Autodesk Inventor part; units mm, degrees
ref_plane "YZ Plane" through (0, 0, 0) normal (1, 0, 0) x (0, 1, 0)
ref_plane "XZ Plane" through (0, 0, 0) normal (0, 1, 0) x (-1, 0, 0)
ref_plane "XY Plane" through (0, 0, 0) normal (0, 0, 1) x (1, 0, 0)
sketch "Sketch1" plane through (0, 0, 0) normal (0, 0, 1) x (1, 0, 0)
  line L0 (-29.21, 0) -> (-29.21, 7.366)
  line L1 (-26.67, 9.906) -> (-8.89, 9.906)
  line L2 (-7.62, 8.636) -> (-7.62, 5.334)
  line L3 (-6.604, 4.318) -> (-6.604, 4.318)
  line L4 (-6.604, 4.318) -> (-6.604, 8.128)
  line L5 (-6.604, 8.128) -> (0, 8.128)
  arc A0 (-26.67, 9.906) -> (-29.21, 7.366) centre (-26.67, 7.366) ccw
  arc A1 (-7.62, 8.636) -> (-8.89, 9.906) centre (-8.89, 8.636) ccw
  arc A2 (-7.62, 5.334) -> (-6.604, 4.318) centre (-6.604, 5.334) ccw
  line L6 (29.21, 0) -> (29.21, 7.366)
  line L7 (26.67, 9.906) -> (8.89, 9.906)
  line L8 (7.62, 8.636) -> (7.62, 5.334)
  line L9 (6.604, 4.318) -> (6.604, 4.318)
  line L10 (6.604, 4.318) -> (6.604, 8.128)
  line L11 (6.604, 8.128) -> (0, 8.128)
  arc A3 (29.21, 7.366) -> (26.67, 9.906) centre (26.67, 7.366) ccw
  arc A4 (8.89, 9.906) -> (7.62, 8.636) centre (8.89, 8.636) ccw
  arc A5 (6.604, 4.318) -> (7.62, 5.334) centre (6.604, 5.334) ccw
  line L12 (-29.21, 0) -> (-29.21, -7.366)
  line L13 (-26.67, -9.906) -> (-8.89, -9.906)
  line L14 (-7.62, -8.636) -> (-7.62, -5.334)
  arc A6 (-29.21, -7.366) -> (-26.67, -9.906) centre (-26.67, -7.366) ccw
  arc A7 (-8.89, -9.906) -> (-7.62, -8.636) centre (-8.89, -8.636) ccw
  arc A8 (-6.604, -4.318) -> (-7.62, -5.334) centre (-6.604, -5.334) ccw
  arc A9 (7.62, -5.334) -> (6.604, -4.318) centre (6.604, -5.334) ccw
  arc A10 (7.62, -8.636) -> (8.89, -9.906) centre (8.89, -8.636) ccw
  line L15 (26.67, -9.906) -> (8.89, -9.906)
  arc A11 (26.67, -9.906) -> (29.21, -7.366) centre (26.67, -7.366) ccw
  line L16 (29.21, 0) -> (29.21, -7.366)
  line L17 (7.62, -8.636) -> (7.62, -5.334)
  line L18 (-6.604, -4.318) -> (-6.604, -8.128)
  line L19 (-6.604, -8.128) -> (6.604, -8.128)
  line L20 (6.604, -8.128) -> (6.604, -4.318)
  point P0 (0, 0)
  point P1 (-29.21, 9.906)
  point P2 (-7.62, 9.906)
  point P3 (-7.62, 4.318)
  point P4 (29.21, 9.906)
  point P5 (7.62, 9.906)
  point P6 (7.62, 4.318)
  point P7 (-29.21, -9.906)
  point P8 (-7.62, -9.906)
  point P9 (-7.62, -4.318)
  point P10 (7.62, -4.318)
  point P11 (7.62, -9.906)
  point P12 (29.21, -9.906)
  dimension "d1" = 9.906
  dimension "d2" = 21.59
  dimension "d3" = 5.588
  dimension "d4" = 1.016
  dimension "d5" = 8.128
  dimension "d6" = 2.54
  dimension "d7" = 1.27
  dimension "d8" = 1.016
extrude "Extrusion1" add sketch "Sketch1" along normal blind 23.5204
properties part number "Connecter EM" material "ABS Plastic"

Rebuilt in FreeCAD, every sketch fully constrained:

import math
import FreeCAD as App
import Part
import Sketcher

V = App.Vector
Q = App.Units.Quantity

doc = App.newDocument("Part")
params = doc.addObject("Spreadsheet::Sheet", "Params")
for row, (alias, value) in enumerate([
    ("sketch1_radius", "0.1 in"),
    ("sketch1_radius2", "0.05 in"),
    ("sketch1_radius3", "0.04 in"),
    ("sketch1_width", "0.7 in"),
    ("sketch1_width2", "0.52 in"),
    ("pad1_length", "0.926 in"),
], start=1):
    params.set(f"A{row}", alias)
    params.set(f"B{row}", "=" + value)
    params.setAlias(f"B{row}", alias)

body = doc.addObject("PartDesign::Body", "Body")

# Sketch on XY plane
sketch1 = doc.addObject("Sketcher::SketchObject", "Sketch")
body.addObject(sketch1)
sketch1.AttachmentSupport = (doc.XY_Plane, [""])
sketch1.MapMode = "FlatFace"
sketch1.addGeometry([
    Part.LineSegment(V(-29.2, 7.4, 0), V(-29.2, -7.4, 0)),  # 0
    Part.ArcOfCircle(Part.Circle(V(-26.7, -7.4, 0), V(0, 0, 1), 2.5), math.radians(180), math.radians(270)),  # 1
    Part.LineSegment(V(-26.7, -9.9, 0), V(-8.9, -9.9, 0)),  # 2
    Part.ArcOfCircle(Part.Circle(V(-8.9, -8.6, 0), V(0, 0, 1), 1.3), math.radians(-90), math.radians(0)),  # 3
    Part.LineSegment(V(-7.6, -8.6, 0), V(-7.6, -5.3, 0)),  # 4
    Part.ArcOfCircle(Part.Circle(V(-6.6, -5.3, 0), V(0, 0, 1), 1), math.radians(90), math.radians(180)),  # 5
    Part.LineSegment(V(-6.6, -4.3, 0), V(-6.6, -8.1, 0)),  # 6
    Part.LineSegment(V(-6.6, -8.1, 0), V(6.6, -8.1, 0)),  # 7
    Part.LineSegment(V(6.6, -8.1, 0), V(6.6, -4.3, 0)),  # 8
    Part.ArcOfCircle(Part.Circle(V(6.6, -5.3, 0), V(0, 0, 1), 1), math.radians(0), math.radians(90)),  # 9
    Part.LineSegment(V(7.6, -5.3, 0), V(7.6, -8.6, 0)),  # 10
    Part.ArcOfCircle(Part.Circle(V(8.9, -8.6, 0), V(0, 0, 1), 1.3), math.radians(180), math.radians(270)),  # 11
    Part.LineSegment(V(8.9, -9.9, 0), V(26.7, -9.9, 0)),  # 12
    Part.ArcOfCircle(Part.Circle(V(26.7, -7.4, 0), V(0, 0, 1), 2.5), math.radians(-90), math.radians(0)),  # 13
    Part.LineSegment(V(29.2, -7.4, 0), V(29.2, 7.4, 0)),  # 14
    Part.ArcOfCircle(Part.Circle(V(26.7, 7.4, 0), V(0, 0, 1), 2.5), math.radians(0), math.radians(90)),  # 15
    Part.LineSegment(V(26.7, 9.9, 0), V(8.9, 9.9, 0)),  # 16
    Part.ArcOfCircle(Part.Circle(V(8.9, 8.6, 0), V(0, 0, 1), 1.3), math.radians(90), math.radians(180)),  # 17
    Part.LineSegment(V(7.6, 8.6, 0), V(7.6, 5.3, 0)),  # 18
    Part.ArcOfCircle(Part.Circle(V(6.6, 5.3, 0), V(0, 0, 1), 1), math.radians(-90), math.radians(0)),  # 19
    Part.LineSegment(V(6.6, 4.3, 0), V(6.6, 8.1, 0)),  # 20
    Part.LineSegment(V(6.6, 8.1, 0), V(-6.6, 8.1, 0)),  # 21
    Part.LineSegment(V(-6.6, 8.1, 0), V(-6.6, 4.3, 0)),  # 22
    Part.ArcOfCircle(Part.Circle(V(-6.6, 5.3, 0), V(0, 0, 1), 1), math.radians(180), math.radians(270)),  # 23
    Part.LineSegment(V(-7.6, 5.3, 0), V(-7.6, 8.6, 0)),  # 24
    Part.ArcOfCircle(Part.Circle(V(-8.9, 8.6, 0), V(0, 0, 1), 1.3), math.radians(0), math.radians(90)),  # 25
    Part.LineSegment(V(-8.9, 9.9, 0), V(-26.7, 9.9, 0)),  # 26
    Part.ArcOfCircle(Part.Circle(V(-26.7, 7.4, 0), V(0, 0, 1), 2.5), math.radians(90), math.radians(180)),  # 27
], False)
sketch1.addConstraint([
    Sketcher.Constraint("Tangent", 0, 2, 1, 1),
    Sketcher.Constraint("Tangent", 1, 2, 2, 1),
    Sketcher.Constraint("Tangent", 2, 2, 3, 1),
    Sketcher.Constraint("Tangent", 3, 2, 4, 1),
    Sketcher.Constraint("Tangent", 4, 2, 5, 2),
    Sketcher.Constraint("Coincident", 5, 1, 6, 1),
    Sketcher.Constraint("Coincident", 6, 2, 7, 1),
    Sketcher.Constraint("Coincident", 7, 2, 8, 1),
    Sketcher.Constraint("Coincident", 8, 2, 9, 2),
    Sketcher.Constraint("Tangent", 9, 1, 10, 1),
    Sketcher.Constraint("Tangent", 10, 2, 11, 1),
    Sketcher.Constraint("Tangent", 11, 2, 12, 1),
    Sketcher.Constraint("Tangent", 12, 2, 13, 1),
    Sketcher.Constraint("Tangent", 13, 2, 14, 1),
    Sketcher.Constraint("Tangent", 14, 2, 15, 1),
    Sketcher.Constraint("Tangent", 15, 2, 16, 1),
    Sketcher.Constraint("Tangent", 16, 2, 17, 1),
    Sketcher.Constraint("Tangent", 17, 2, 18, 1),
    Sketcher.Constraint("Tangent", 18, 2, 19, 2),
    Sketcher.Constraint("Coincident", 19, 1, 20, 1),
    Sketcher.Constraint("Coincident", 20, 2, 21, 1),
    Sketcher.Constraint("Coincident", 21, 2, 22, 1),
    Sketcher.Constraint("Coincident", 22, 2, 23, 2),
    Sketcher.Constraint("Tangent", 23, 1, 24, 1),
    Sketcher.Constraint("Tangent", 24, 2, 25, 1),
    Sketcher.Constraint("Tangent", 25, 2, 26, 1),
    Sketcher.Constraint("Tangent", 26, 2, 27, 1),
    Sketcher.Constraint("Tangent", 27, 2, 0, 1),
    Sketcher.Constraint("Vertical", 0),
    Sketcher.Constraint("Horizontal", 2),
    Sketcher.Constraint("Vertical", 4),
    Sketcher.Constraint("Vertical", 6),
    Sketcher.Constraint("Horizontal", 7),
    Sketcher.Constraint("Vertical", 8),
    Sketcher.Constraint("Vertical", 10),
    Sketcher.Constraint("Horizontal", 12),
    Sketcher.Constraint("Vertical", 14),
    Sketcher.Constraint("Horizontal", 16),
    Sketcher.Constraint("Vertical", 18),
    Sketcher.Constraint("Vertical", 20),
    Sketcher.Constraint("Horizontal", 21),
    Sketcher.Constraint("Vertical", 22),
    Sketcher.Constraint("Vertical", 24),
    Sketcher.Constraint("Horizontal", 26),
    Sketcher.Constraint("Equal", 5, 9),
    Sketcher.Constraint("Equal", 3, 11),
    Sketcher.Constraint("Equal", 1, 13),
    Sketcher.Constraint("Equal", 13, 15),
    Sketcher.Constraint("Equal", 11, 17),
    Sketcher.Constraint("Equal", 9, 19),
    Sketcher.Constraint("Equal", 19, 23),
    Sketcher.Constraint("Equal", 17, 25),
    Sketcher.Constraint("Equal", 15, 27),
    Sketcher.Constraint("Symmetric", 1, 3, 15, 3, -1, 1),
    Sketcher.Constraint("Symmetric", 5, 3, 19, 3, -1, 1),
    Sketcher.Constraint("Symmetric", 9, 3, 23, 3, -1, 1),
    Sketcher.Constraint("Symmetric", 6, 2, 20, 2, -1, 1),
    Sketcher.Constraint("Symmetric", 5, 3, 9, 3, -2),
    Sketcher.Constraint("Horizontal", 3, 3, 11, 3),
    Sketcher.Constraint("Horizontal", 17, 3, 25, 3),
    Sketcher.Constraint("Vertical", 23, 3, 5, 1),
    Sketcher.Constraint("Vertical", 19, 3, 7, 2),
    Sketcher.Constraint("Vertical", 6, 2, 21, 2),
    Sketcher.Constraint("Radius", 1, Q("0.1 in")),
    Sketcher.Constraint("Radius", 3, Q("0.05 in")),
    Sketcher.Constraint("Radius", 5, Q("0.04 in")),
    Sketcher.Constraint("DistanceY", 1, 2, -1, 1, Q("0.39 in")),
    Sketcher.Constraint("DistanceY", 6, 2, -1, 1, Q("0.32 in")),
    Sketcher.Constraint("DistanceY", 2, 2, 5, 1, Q("0.22 in")),
    Sketcher.Constraint("DistanceX", 2, 1, 2, 2, Q("0.7 in")),
    Sketcher.Constraint("DistanceX", 7, 1, 7, 2, Q("0.52 in")),
])
sketch1.setExpression("Constraints[63]", "Params.sketch1_radius")
sketch1.setExpression("Constraints[64]", "Params.sketch1_radius2")
sketch1.setExpression("Constraints[65]", "Params.sketch1_radius3")
sketch1.setExpression("Constraints[69]", "Params.sketch1_width")
sketch1.setExpression("Constraints[70]", "Params.sketch1_width2")
pad1 = doc.addObject("PartDesign::Pad", "Pad")
body.addObject(pad1)
pad1.Profile = sketch1
pad1.setExpression("Length", "Params.pad1_length")

doc.recompute()
